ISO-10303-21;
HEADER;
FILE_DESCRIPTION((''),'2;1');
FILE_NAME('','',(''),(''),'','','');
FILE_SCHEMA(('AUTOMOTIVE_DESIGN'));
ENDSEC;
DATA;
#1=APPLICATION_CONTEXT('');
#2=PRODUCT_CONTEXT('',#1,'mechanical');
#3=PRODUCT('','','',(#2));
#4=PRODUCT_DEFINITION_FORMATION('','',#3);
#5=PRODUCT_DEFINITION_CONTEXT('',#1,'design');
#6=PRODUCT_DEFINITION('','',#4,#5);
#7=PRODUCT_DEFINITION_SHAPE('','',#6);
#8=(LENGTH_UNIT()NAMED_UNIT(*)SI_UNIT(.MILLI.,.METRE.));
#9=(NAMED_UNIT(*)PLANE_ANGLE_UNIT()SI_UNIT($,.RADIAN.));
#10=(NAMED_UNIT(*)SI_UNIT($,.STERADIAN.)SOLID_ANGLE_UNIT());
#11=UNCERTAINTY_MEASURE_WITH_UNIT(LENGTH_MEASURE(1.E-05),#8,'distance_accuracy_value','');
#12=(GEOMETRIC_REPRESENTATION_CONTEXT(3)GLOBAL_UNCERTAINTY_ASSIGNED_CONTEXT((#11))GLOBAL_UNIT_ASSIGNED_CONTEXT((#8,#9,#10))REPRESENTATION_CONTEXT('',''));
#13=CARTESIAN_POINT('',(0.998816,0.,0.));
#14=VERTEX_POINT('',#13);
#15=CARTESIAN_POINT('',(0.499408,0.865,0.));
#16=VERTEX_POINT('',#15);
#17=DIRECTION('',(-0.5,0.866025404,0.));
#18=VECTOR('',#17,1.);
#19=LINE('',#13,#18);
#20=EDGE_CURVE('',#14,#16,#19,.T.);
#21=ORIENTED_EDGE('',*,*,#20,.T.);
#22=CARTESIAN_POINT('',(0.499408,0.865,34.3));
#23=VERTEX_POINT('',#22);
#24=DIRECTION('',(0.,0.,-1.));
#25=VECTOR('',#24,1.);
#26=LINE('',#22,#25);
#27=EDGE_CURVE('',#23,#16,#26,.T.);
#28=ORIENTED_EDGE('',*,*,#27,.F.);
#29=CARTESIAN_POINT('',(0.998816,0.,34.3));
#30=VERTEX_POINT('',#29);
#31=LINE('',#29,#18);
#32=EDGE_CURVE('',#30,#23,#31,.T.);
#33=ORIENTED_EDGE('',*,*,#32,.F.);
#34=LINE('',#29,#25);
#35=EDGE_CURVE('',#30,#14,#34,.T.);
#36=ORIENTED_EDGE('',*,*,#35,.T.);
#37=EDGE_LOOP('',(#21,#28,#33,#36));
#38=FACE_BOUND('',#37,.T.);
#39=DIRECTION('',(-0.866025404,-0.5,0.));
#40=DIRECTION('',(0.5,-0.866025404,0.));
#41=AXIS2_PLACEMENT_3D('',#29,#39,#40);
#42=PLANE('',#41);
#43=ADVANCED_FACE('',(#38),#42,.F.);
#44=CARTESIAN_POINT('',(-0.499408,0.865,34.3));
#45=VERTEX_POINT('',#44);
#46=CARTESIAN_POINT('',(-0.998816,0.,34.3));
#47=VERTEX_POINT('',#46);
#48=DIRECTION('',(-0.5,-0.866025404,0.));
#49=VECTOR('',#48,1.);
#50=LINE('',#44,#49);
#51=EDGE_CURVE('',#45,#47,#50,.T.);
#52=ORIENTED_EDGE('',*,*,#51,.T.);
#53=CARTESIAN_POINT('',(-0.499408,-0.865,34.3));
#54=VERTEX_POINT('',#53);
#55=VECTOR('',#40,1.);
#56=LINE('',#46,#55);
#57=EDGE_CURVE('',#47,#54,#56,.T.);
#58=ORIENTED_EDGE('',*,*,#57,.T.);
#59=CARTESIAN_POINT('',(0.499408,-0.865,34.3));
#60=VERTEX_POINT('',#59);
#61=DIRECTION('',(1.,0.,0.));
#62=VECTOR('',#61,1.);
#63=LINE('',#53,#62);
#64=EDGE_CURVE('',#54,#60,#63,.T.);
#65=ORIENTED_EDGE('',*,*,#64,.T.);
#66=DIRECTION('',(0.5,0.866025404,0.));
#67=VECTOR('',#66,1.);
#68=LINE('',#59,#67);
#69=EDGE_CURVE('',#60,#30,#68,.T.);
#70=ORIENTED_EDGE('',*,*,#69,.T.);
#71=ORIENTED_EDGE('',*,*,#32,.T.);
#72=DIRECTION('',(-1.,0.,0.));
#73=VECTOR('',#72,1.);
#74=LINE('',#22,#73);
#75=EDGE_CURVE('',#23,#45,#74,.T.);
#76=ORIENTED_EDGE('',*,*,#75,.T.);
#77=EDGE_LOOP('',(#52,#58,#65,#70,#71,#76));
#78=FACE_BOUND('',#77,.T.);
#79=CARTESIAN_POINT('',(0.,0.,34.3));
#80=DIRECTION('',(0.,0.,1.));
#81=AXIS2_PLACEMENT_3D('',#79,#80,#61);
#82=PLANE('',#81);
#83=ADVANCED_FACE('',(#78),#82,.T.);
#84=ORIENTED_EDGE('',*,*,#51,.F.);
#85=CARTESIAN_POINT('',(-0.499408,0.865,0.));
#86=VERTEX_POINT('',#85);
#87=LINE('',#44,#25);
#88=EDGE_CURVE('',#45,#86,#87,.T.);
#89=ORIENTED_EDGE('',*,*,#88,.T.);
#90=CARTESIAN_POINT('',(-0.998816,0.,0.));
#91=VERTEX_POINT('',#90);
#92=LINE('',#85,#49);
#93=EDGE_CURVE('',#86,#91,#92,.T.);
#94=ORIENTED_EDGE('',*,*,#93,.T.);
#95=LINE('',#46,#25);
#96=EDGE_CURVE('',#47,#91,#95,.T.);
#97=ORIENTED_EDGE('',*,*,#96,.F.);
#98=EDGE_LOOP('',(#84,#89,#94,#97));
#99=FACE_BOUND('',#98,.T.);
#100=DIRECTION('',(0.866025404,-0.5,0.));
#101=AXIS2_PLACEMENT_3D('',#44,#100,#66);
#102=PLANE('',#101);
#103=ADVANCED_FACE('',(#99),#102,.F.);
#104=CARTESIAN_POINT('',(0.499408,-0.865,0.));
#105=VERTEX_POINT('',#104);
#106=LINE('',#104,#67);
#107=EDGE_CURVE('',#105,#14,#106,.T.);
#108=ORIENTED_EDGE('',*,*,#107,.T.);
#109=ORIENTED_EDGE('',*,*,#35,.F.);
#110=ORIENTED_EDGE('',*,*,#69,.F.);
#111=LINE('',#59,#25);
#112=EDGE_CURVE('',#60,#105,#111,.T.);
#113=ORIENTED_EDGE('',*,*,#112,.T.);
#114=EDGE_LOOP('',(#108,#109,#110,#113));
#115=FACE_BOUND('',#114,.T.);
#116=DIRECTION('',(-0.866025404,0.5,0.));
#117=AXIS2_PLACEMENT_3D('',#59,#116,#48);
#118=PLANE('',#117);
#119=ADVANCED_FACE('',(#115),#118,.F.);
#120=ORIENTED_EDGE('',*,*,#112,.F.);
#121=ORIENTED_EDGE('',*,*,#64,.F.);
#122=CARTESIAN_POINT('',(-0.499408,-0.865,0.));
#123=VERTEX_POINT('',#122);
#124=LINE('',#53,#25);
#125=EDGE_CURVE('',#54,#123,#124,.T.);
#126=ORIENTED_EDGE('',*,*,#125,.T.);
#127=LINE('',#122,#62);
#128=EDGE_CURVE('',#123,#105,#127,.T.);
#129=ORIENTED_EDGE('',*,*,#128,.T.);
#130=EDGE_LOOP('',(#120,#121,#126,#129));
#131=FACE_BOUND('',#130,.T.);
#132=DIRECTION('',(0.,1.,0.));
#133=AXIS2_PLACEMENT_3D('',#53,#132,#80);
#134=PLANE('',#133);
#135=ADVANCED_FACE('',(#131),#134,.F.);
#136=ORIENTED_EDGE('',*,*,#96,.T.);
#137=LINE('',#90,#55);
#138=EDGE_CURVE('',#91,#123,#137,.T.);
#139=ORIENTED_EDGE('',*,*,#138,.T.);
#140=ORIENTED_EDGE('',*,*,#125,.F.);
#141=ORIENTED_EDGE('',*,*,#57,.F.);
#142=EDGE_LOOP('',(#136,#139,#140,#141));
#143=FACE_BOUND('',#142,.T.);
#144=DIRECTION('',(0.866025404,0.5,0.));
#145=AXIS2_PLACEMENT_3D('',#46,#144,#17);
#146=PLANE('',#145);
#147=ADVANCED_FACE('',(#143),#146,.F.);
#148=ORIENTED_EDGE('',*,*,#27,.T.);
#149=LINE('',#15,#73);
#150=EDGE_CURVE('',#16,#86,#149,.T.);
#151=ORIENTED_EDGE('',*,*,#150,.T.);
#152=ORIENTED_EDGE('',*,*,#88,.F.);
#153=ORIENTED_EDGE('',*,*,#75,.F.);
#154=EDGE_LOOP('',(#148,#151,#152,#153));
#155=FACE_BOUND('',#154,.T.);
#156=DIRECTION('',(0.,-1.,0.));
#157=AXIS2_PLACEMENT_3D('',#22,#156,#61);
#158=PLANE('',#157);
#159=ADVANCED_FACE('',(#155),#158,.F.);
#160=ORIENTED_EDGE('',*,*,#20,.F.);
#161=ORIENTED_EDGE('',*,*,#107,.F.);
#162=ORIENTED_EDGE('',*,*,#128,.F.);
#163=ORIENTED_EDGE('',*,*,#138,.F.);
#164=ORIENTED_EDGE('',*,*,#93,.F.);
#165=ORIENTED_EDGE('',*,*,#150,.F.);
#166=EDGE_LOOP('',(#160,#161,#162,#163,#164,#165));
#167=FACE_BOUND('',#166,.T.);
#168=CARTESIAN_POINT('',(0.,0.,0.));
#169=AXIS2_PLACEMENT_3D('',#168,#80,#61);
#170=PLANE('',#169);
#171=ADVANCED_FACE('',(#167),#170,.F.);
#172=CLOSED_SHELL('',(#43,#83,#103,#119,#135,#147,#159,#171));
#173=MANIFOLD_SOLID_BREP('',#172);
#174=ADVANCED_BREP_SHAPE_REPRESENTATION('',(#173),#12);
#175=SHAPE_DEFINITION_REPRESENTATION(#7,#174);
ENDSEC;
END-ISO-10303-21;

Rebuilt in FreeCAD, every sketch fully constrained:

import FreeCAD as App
import Part
import Sketcher
from FreeCAD import Vector
Q = App.Units.Quantity


def add_polygon(sketch, points):
    """Adds a closed chain of lines whose ends are joined by coincident constraints."""
    first, n = sketch.GeometryCount, len(points)
    for a, b in zip(points, points[1:] + points[:1]):
        sketch.addGeometry(Part.LineSegment(App.Vector(*a, 0), App.Vector(*b, 0)), False)
    for i in range(n):
        sketch.addConstraint(Sketcher.Constraint("Coincident", first + i, 2, first + (i + 1) % n, 1))

doc = App.newDocument("Part")
body = doc.addObject("PartDesign::Body", "Body")

# Sketch on XY plane
sketch1 = doc.addObject("Sketcher::SketchObject", "Sketch")
body.addObject(sketch1)
sketch1.AttachmentSupport = (doc.XY_Plane, [""])
sketch1.MapMode = "FlatFace"
add_polygon(sketch1, [(1, 0), (0.5, 0.9), (-0.5, 0.9), (-1, 0), (-0.5, -0.9), (0.5, -0.9)])  # lines 0-5
sketch1.addConstraint(Sketcher.Constraint("Horizontal", 1))
sketch1.addConstraint(Sketcher.Constraint("Horizontal", 4))
sketch1.addConstraint(Sketcher.Constraint("Symmetric", 0, 2, 3, 2, -1, 1))
sketch1.addConstraint(Sketcher.Constraint("Symmetric", 2, 2, 5, 2, -1, 1))
sketch1.addConstraint(Sketcher.Constraint("PointOnObject", 2, 2, -1))
sketch1.addConstraint(Sketcher.Constraint("Parallel", 2, 5))
sketch1.addConstraint(Sketcher.Constraint("Vertical", 1, 2, 3, 2))
sketch1.addConstraint(Sketcher.Constraint("Angle", 0, Q("120 deg")))
sketch1.addConstraint(Sketcher.Constraint("DistanceY", 3, 2, 1, 2, 1.73))
sketch1.addConstraint(Sketcher.Constraint("DistanceX", 1, 2, 1, 1, 0.998816))
pad1 = doc.addObject("PartDesign::Pad", "Pad")
body.addObject(pad1)
pad1.Profile = sketch1
pad1.Length = 34.3

doc.recompute()
